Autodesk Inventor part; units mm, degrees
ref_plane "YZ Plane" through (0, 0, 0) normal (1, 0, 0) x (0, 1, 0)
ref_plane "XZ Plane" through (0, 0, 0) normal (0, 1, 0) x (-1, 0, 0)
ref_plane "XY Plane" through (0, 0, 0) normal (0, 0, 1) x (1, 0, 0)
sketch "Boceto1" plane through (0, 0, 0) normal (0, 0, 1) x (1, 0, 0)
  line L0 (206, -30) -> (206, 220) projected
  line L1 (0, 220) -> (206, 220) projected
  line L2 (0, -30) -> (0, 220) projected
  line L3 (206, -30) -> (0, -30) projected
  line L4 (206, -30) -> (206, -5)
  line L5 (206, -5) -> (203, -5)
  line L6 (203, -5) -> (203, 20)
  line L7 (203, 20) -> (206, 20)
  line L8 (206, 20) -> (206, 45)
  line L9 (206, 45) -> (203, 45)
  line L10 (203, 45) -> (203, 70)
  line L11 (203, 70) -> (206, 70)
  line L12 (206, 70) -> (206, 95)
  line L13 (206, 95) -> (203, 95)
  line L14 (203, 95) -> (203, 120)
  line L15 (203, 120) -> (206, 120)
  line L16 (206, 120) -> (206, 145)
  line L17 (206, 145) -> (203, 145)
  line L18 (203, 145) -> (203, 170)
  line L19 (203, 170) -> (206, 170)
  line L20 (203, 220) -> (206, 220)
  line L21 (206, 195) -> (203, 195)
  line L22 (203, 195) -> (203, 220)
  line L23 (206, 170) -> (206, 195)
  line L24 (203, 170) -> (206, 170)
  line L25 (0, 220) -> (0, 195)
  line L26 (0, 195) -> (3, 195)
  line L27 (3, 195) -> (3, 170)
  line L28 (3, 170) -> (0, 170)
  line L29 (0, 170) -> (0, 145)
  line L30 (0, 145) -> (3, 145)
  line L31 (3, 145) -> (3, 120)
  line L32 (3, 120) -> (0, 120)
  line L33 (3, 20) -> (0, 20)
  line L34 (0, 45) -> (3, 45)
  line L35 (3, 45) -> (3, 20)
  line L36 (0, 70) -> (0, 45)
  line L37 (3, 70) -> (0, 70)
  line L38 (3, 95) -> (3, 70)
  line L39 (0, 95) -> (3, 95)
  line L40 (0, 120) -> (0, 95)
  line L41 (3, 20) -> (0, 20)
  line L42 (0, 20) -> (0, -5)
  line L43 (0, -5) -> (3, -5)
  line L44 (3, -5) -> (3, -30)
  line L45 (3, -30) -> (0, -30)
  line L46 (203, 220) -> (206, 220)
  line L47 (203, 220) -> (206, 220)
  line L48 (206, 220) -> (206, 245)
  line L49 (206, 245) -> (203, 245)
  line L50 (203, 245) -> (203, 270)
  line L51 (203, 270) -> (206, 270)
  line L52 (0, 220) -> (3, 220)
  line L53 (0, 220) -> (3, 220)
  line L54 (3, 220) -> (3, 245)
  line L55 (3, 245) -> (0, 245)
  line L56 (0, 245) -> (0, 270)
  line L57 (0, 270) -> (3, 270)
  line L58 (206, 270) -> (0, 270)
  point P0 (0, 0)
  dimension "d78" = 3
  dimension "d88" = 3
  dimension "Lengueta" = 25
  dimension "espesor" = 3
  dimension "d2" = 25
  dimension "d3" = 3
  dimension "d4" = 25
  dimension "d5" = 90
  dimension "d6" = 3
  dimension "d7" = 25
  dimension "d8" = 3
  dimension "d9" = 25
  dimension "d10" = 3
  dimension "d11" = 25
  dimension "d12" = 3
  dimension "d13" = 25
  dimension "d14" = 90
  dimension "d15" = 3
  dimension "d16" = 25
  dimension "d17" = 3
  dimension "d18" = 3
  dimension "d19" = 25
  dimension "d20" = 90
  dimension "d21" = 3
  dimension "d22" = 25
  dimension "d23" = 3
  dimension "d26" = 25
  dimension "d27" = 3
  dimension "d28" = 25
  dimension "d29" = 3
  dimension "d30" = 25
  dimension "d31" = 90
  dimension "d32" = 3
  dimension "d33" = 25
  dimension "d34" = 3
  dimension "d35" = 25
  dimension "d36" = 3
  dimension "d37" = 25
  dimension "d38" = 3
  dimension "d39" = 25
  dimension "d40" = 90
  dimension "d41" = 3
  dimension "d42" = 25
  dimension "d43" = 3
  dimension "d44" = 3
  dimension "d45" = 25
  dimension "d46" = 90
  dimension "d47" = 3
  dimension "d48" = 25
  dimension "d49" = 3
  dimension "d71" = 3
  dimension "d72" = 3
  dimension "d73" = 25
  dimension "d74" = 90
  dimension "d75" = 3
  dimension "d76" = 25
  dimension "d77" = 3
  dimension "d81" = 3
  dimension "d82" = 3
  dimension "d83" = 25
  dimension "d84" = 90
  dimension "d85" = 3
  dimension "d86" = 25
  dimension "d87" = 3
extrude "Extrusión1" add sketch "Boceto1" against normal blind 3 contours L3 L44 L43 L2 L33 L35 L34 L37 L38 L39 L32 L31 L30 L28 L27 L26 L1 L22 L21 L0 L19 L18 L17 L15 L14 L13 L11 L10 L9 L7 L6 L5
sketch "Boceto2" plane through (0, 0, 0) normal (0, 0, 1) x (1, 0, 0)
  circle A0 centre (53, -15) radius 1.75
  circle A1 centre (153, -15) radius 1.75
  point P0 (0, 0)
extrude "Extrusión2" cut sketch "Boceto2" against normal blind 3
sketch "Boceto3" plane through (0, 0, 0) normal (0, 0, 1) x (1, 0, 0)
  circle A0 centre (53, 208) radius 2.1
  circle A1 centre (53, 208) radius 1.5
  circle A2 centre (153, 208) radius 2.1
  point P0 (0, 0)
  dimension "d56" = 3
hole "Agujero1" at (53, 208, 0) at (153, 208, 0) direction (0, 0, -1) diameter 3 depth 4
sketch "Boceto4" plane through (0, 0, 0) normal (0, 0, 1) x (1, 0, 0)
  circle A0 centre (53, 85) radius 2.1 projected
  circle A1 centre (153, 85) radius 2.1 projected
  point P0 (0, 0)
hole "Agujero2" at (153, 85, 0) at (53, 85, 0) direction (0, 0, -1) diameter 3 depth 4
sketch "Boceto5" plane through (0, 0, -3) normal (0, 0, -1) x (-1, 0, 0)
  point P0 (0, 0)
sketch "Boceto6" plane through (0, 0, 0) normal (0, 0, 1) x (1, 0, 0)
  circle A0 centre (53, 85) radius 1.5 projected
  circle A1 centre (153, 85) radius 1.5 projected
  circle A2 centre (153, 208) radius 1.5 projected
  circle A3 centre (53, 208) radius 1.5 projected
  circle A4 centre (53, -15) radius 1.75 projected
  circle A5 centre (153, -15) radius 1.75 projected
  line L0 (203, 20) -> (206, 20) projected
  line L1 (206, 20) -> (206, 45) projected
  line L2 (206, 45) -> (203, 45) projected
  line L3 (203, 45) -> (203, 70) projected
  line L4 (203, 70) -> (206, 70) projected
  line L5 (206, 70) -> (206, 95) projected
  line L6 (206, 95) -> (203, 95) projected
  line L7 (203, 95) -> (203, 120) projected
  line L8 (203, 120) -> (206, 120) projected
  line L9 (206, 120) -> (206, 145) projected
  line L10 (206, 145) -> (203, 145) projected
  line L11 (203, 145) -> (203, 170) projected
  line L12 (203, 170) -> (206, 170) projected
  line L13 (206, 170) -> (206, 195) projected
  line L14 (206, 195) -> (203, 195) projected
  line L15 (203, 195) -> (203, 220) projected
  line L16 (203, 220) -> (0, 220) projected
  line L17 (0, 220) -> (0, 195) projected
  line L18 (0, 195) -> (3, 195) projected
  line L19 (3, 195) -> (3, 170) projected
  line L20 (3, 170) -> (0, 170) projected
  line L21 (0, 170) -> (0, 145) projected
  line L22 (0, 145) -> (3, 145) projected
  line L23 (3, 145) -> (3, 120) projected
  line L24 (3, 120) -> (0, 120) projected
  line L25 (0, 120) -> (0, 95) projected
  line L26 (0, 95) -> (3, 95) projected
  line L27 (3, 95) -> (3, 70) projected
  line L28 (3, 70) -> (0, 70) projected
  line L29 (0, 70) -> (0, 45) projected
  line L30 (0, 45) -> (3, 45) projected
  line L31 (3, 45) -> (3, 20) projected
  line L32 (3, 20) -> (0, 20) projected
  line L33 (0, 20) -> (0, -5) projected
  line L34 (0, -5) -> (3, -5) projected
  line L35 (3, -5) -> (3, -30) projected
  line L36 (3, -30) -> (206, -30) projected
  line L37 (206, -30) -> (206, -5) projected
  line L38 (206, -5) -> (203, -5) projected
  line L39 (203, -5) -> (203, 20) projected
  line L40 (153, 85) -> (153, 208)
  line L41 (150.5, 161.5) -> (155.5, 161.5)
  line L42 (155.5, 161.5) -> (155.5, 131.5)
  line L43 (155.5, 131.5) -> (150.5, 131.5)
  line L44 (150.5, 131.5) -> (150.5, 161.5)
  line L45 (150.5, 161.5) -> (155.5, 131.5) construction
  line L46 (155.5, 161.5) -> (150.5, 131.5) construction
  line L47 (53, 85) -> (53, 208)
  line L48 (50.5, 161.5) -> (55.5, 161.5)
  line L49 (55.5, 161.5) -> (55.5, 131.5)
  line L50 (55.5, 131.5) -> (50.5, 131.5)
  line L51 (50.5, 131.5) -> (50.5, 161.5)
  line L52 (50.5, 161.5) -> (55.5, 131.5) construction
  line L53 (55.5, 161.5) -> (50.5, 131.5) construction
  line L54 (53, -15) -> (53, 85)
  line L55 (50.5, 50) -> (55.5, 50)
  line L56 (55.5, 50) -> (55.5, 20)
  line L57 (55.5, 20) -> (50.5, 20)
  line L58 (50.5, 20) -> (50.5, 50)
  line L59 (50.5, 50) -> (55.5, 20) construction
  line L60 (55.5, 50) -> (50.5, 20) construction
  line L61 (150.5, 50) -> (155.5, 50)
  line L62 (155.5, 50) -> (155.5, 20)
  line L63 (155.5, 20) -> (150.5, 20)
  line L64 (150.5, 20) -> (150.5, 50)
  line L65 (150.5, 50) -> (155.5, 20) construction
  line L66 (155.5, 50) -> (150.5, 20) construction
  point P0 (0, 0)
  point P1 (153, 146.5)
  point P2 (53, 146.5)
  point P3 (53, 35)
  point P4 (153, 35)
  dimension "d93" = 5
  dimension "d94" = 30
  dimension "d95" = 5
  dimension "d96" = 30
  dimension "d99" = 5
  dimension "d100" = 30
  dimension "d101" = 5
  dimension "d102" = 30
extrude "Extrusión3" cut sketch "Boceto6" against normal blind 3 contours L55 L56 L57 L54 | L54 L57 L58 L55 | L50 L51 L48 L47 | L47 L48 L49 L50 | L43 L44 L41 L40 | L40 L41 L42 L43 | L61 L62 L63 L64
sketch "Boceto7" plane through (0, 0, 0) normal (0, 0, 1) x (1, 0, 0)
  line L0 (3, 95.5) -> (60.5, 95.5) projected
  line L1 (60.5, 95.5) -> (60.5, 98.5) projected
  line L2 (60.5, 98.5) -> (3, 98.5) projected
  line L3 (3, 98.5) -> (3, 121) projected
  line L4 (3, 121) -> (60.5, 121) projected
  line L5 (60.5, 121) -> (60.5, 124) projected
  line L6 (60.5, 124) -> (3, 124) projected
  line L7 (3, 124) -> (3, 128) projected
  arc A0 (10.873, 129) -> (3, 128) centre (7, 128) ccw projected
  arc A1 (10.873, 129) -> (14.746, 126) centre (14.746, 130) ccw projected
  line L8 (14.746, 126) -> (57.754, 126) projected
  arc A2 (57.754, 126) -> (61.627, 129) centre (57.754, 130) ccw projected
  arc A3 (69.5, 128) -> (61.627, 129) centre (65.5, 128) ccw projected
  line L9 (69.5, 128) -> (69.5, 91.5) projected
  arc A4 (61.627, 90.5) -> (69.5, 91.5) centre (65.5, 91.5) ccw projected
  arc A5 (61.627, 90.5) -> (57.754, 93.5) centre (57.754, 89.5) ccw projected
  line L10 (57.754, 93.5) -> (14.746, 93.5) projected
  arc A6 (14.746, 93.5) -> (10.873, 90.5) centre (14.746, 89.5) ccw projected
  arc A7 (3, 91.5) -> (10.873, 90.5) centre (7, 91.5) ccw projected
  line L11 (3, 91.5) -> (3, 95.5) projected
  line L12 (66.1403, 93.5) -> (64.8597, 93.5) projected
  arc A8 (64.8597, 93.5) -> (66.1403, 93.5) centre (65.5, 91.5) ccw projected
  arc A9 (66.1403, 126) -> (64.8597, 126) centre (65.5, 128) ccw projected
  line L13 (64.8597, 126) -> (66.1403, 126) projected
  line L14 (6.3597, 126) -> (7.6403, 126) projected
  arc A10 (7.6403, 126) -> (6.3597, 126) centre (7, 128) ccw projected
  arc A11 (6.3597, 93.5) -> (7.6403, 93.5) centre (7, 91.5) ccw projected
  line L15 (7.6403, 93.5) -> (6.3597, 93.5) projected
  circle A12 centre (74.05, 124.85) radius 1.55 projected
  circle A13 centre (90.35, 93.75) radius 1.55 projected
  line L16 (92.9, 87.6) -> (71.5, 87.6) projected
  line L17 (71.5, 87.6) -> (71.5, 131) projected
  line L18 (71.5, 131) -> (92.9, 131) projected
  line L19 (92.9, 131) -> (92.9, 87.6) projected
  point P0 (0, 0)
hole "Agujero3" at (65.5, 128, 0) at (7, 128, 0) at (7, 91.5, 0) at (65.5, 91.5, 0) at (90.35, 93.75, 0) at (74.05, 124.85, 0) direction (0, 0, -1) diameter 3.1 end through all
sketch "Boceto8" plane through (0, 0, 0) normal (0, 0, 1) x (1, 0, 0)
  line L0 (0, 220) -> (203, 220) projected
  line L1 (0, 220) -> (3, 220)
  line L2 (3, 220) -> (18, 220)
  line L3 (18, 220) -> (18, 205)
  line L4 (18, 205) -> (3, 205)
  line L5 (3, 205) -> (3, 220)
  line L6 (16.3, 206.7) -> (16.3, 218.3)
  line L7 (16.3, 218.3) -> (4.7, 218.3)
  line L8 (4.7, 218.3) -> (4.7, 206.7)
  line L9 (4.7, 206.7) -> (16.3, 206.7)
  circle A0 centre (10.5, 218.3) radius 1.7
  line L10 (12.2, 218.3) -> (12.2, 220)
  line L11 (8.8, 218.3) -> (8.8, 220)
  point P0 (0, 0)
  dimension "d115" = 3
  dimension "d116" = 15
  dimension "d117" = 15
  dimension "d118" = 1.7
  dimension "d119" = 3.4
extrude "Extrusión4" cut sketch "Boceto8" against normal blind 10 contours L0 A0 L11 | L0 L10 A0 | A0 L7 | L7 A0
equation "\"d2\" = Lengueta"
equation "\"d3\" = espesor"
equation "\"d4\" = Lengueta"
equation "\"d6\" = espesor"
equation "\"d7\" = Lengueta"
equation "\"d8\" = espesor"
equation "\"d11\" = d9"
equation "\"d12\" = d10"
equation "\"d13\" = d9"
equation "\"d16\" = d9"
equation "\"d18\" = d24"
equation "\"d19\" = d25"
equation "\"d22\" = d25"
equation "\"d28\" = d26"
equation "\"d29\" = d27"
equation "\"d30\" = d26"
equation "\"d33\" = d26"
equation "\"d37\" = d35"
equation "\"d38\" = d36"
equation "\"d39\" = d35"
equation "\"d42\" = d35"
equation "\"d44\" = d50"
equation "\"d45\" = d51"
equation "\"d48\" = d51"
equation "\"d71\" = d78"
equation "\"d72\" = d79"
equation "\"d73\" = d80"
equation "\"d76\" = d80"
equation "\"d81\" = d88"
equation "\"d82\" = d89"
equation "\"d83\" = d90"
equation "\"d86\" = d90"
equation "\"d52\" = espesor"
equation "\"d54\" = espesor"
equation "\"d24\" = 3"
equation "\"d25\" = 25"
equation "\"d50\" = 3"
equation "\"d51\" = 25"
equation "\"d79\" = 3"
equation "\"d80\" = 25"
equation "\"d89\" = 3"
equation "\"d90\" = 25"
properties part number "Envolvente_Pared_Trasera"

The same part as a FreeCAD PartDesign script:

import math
import FreeCAD as App
import Part
import Sketcher
from FreeCAD import Vector


def add_polygon(sketch, points):
    """Adds a closed chain of lines whose ends are joined by coincident constraints."""
    first, n = sketch.GeometryCount, len(points)
    for a, b in zip(points, points[1:] + points[:1]):
        sketch.addGeometry(Part.LineSegment(App.Vector(*a, 0), App.Vector(*b, 0)), False)
    for i in range(n):
        sketch.addConstraint(Sketcher.Constraint("Coincident", first + i, 2, first + (i + 1) % n, 1))

doc = App.newDocument("Part")
body = doc.addObject("PartDesign::Body", "Body")

sketch1 = doc.addObject("Sketcher::SketchObject", "Sketch")
body.addObject(sketch1)
sketch1.AttachmentSupport = (doc.XY_Plane, [""])
sketch1.MapMode = "FlatFace"
add_polygon(sketch1, [(3, -30), (206, -30), (206, -5), (203, -5), (203, 20), (206, 20), (206, 45), (203, 45), (203, 70), (206, 70), (206, 95), (203, 95), (203, 120), (206, 120), (206, 145), (203, 145), (203, 170), (206, 170), (206, 195), (203, 195), (203, 220), (0, 220), (0, 195), (3, 195), (3, 170), (0, 170), (0, 145), (3, 145), (3, 120), (0, 120), (0, 95), (3, 95), (3, 70), (0, 70), (0, 45), (3, 45), (3, 20), (0, 20), (0, -5), (3, -5)])
sketch1.addConstraint([
    Sketcher.Constraint("Horizontal", 0),
    Sketcher.Constraint("Vertical", 1),
    Sketcher.Constraint("Horizontal", 2),
    Sketcher.Constraint("Vertical", 3),
    Sketcher.Constraint("Horizontal", 4),
    Sketcher.Constraint("Vertical", 5),
    Sketcher.Constraint("Horizontal", 6),
    Sketcher.Constraint("Vertical", 7),
    Sketcher.Constraint("Horizontal", 8),
    Sketcher.Constraint("Vertical", 9),
    Sketcher.Constraint("Horizontal", 10),
    Sketcher.Constraint("Vertical", 11),
    Sketcher.Constraint("Horizontal", 12),
    Sketcher.Constraint("Vertical", 13),
    Sketcher.Constraint("Horizontal", 14),
    Sketcher.Constraint("Vertical", 15),
    Sketcher.Constraint("Horizontal", 16),
    Sketcher.Constraint("Vertical", 17),
    Sketcher.Constraint("Horizontal", 18),
    Sketcher.Constraint("Vertical", 19),
    Sketcher.Constraint("Horizontal", 20),
    Sketcher.Constraint("Vertical", 21),
    Sketcher.Constraint("Horizontal", 22),
    Sketcher.Constraint("Vertical", 23),
    Sketcher.Constraint("Horizontal", 24),
    Sketcher.Constraint("Vertical", 25),
    Sketcher.Constraint("Horizontal", 26),
    Sketcher.Constraint("Vertical", 27),
    Sketcher.Constraint("Horizontal", 28),
    Sketcher.Constraint("Vertical", 29),
    Sketcher.Constraint("Horizontal", 30),
    Sketcher.Constraint("Vertical", 31),
    Sketcher.Constraint("Horizontal", 32),
    Sketcher.Constraint("Vertical", 33),
    Sketcher.Constraint("Horizontal", 34),
    Sketcher.Constraint("Vertical", 35),
    Sketcher.Constraint("Horizontal", 36),
    Sketcher.Constraint("Vertical", 37),
    Sketcher.Constraint("Horizontal", 38),
    Sketcher.Constraint("Vertical", 39),
    Sketcher.Constraint("PointOnObject", 20, 2, -2),
    Sketcher.Constraint("PointOnObject", 24, 2, -2),
    Sketcher.Constraint("PointOnObject", 28, 2, -2),
    Sketcher.Constraint("PointOnObject", 32, 2, -2),
    Sketcher.Constraint("PointOnObject", 36, 2, -2),
    Sketcher.Constraint("Horizontal", 18, 2, 21, 2),
    Sketcher.Constraint("Horizontal", 16, 2, 23, 2),
    Sketcher.Constraint("Horizontal", 14, 2, 25, 2),
    Sketcher.Constraint("Horizontal", 12, 2, 27, 2),
    Sketcher.Constraint("Horizontal", 10, 2, 29, 2),
    Sketcher.Constraint("Horizontal", 8, 2, 31, 2),
    Sketcher.Constraint("Horizontal", 6, 2, 33, 2),
    Sketcher.Constraint("Horizontal", 4, 2, 35, 2),
    Sketcher.Constraint("Horizontal", 2, 2, 37, 2),
    Sketcher.Constraint("Vertical", 1, 2, 4, 2),
    Sketcher.Constraint("Vertical", 3, 2, 6, 2),
    Sketcher.Constraint("Vertical", 5, 2, 8, 2),
    Sketcher.Constraint("Vertical", 7, 2, 10, 2),
    Sketcher.Constraint("Vertical", 9, 2, 12, 2),
    Sketcher.Constraint("Vertical", 11, 2, 14, 2),
    Sketcher.Constraint("Vertical", 13, 2, 16, 2),
    Sketcher.Constraint("Vertical", 15, 2, 18, 2),
    Sketcher.Constraint("Vertical", 23, 2, 26, 2),
    Sketcher.Constraint("Vertical", 27, 2, 30, 2),
    Sketcher.Constraint("Vertical", 31, 2, 34, 2),
    Sketcher.Constraint("Vertical", 35, 2, 38, 2),
    Sketcher.Constraint("Equal", 0, 20),
    Sketcher.Constraint("Equal", 1, 3),
    Sketcher.Constraint("Equal", 3, 5),
    Sketcher.Constraint("Equal", 5, 7),
    Sketcher.Constraint("Equal", 7, 9),
    Sketcher.Constraint("Equal", 9, 11),
    Sketcher.Constraint("Equal", 11, 13),
    Sketcher.Constraint("Equal", 13, 15),
    Sketcher.Constraint("Equal", 15, 17),
    Sketcher.Constraint("Equal", 17, 19),
    Sketcher.Constraint("DistanceX", 2, 2, 2, 1, 3.0),
    Sketcher.Constraint("DistanceY", 1, 1, 1, 2, 25.0),
    Sketcher.Constraint("DistanceX", 0, 1, 0, 2, 203.0),
    Sketcher.Constraint("DistanceY", 0, 2, -1, 1, 30.0),
])
pad1 = doc.addObject("PartDesign::Pad", "Pad")
body.addObject(pad1)
pad1.Profile = sketch1
pad1.Length = 3
pad1.Reversed = True

sketch2 = doc.addObject("Sketcher::SketchObject", "Sketch001")
body.addObject(sketch2)
sketch2.AttachmentSupport = (doc.XY_Plane, [""])
sketch2.MapMode = "FlatFace"
sketch2.addGeometry([
    Part.Circle(Vector(53, -15, 0), Vector(0, 0, 1), 1.75),
    Part.Circle(Vector(153, -15, 0), Vector(0, 0, 1), 1.75),
], False)
sketch2.addConstraint([
    Sketcher.Constraint("Equal", 0, 1),
    Sketcher.Constraint("Horizontal", 0, 3, 1, 3),
    Sketcher.Constraint("Diameter", 0, 3.5),
    Sketcher.Constraint("DistanceX", -1, 1, 0, 3, 53.0),
    Sketcher.Constraint("DistanceY", 0, 3, -1, 1, 15.0),
    Sketcher.Constraint("DistanceX", -1, 1, 1, 3, 153.0),
])
pocket1 = doc.addObject("PartDesign::Pocket", "Pocket")
body.addObject(pocket1)
pocket1.Profile = sketch2
pocket1.Length = 3

sketch3 = doc.addObject("Sketcher::SketchObject", "Sketch002")
body.addObject(sketch3)
sketch3.AttachmentSupport = (doc.XY_Plane, [""])
sketch3.MapMode = "FlatFace"
sketch3.addGeometry([
    Part.Circle(Vector(53, 208, 0), Vector(0, 0, 1), 1.5),
    Part.Circle(Vector(153, 208, 0), Vector(0, 0, 1), 1.5),
], False)
sketch3.addConstraint([
    Sketcher.Constraint("Equal", 0, 1),
    Sketcher.Constraint("Horizontal", 0, 3, 1, 3),
    Sketcher.Constraint("Diameter", 0, 3.0),
    Sketcher.Constraint("DistanceX", -1, 1, 0, 3, 53.0),
    Sketcher.Constraint("DistanceY", -1, 1, 0, 3, 208.0),
    Sketcher.Constraint("DistanceX", -1, 1, 1, 3, 153.0),
])
doc.recompute()
hole = doc.addObject("PartDesign::Hole", "Hole")
body.addObject(hole)
hole.Profile = sketch3
hole.ThreadType = "None"
hole.Diameter = 3
hole.DepthType = "Dimension"
hole.Depth = 4
hole.DrillPoint = "Flat"

sketch4 = doc.addObject("Sketcher::SketchObject", "Sketch003")
body.addObject(sketch4)
sketch4.AttachmentSupport = (doc.XY_Plane, [""])
sketch4.MapMode = "FlatFace"
sketch4.addGeometry([
    Part.Circle(Vector(153, 85, 0), Vector(0, 0, 1), 1.5),
    Part.Circle(Vector(53, 85, 0), Vector(0, 0, 1), 1.5),
], False)
sketch4.addConstraint([
    Sketcher.Constraint("Equal", 0, 1),
    Sketcher.Constraint("Horizontal", 0, 3, 1, 3),
    Sketcher.Constraint("Diameter", 0, 3.0),
    Sketcher.Constraint("DistanceX", -1, 1, 0, 3, 153.0),
    Sketcher.Constraint("DistanceY", -1, 1, 0, 3, 85.0),
    Sketcher.Constraint("DistanceX", -1, 1, 1, 3, 53.0),
])
doc.recompute()
hole2 = doc.addObject("PartDesign::Hole", "Hole001")
body.addObject(hole2)
hole2.Profile = sketch4
hole2.ThreadType = "None"
hole2.Diameter = 3
hole2.DepthType = "Dimension"
hole2.Depth = 4
hole2.DrillPoint = "Flat"

sketch5 = doc.addObject("Sketcher::SketchObject", "Sketch004")
body.addObject(sketch5)
sketch5.AttachmentSupport = (doc.XY_Plane, [""])
sketch5.MapMode = "FlatFace"
add_polygon(sketch5, [(55.5, 50), (50.5, 50), (50.5, 20), (55.5, 20)])
add_polygon(sketch5, [(50.5, 131.5), (55.5, 131.5), (55.5, 161.5), (50.5, 161.5)])
add_polygon(sketch5, [(150.5, 131.5), (155.5, 131.5), (155.5, 161.5), (150.5, 161.5)])
add_polygon(sketch5, [(155.5, 50), (150.5, 50), (150.5, 20), (155.5, 20)])
sketch5.addConstraint([
    Sketcher.Constraint("Horizontal", 0),
    Sketcher.Constraint("Vertical", 1),
    Sketcher.Constraint("Horizontal", 2),
    Sketcher.Constraint("Vertical", 3),
    Sketcher.Constraint("Horizontal", 4),
    Sketcher.Constraint("Vertical", 5),
    Sketcher.Constraint("Horizontal", 6),
    Sketcher.Constraint("Vertical", 7),
    Sketcher.Constraint("Horizontal", 8),
    Sketcher.Constraint("Vertical", 9),
    Sketcher.Constraint("Horizontal", 10),
    Sketcher.Constraint("Vertical", 11),
    Sketcher.Constraint("Horizontal", 12),
    Sketcher.Constraint("Vertical", 13),
    Sketcher.Constraint("Horizontal", 14),
    Sketcher.Constraint("Vertical", 15),
    Sketcher.Constraint("Horizontal", 7, 2, 8, 2),
    Sketcher.Constraint("Horizontal", 6, 2, 9, 2),
    Sketcher.Constraint("Horizontal", 3, 2, 12, 2),
    Sketcher.Constraint("Horizontal", 2, 2, 13, 2),
    Sketcher.Constraint("Vertical", 3, 2, 4, 2),
    Sketcher.Constraint("Vertical", 1, 2, 6, 2),
    Sketcher.Constraint("Vertical", 11, 2, 12, 2),
    Sketcher.Constraint("Vertical", 9, 2, 14, 2),
    Sketcher.Constraint("Equal", 6, 8),
    Sketcher.Constraint("Equal", 3, 5),
    Sketcher.Constraint("DistanceX", 0, 2, 0, 1, 5.0),
    Sketcher.Constraint("DistanceY", 1, 2, 1, 1, 30.0),
    Sketcher.Constraint("DistanceY", -1, 1, 0, 2, 50.0),
    Sketcher.Constraint("DistanceX", 4, 2, 8, 2, 100.0),
    Sketcher.Constraint("DistanceX", -1, 1, 0, 2, 50.5),
    Sketcher.Constraint("DistanceY", -1, 1, 4, 2, 131.5),
])
pocket2 = doc.addObject("PartDesign::Pocket", "Pocket001")
body.addObject(pocket2)
pocket2.Profile = sketch5
pocket2.Length = 3

sketch6 = doc.addObject("Sketcher::SketchObject", "Sketch005")
body.addObject(sketch6)
sketch6.AttachmentSupport = (doc.XY_Plane, [""])
sketch6.MapMode = "FlatFace"
sketch6.addGeometry([
    Part.Circle(Vector(65.5, 128, 0), Vector(0, 0, 1), 1.55),
    Part.Circle(Vector(7, 128, 0), Vector(0, 0, 1), 1.55),
    Part.Circle(Vector(7, 91.5, 0), Vector(0, 0, 1), 1.55),
    Part.Circle(Vector(65.5, 91.5, 0), Vector(0, 0, 1), 1.55),
    Part.Circle(Vector(90.35, 93.75, 0), Vector(0, 0, 1), 1.55),
    Part.Circle(Vector(74.05, 124.85, 0), Vector(0, 0, 1), 1.55),
], False)
sketch6.addConstraint([
    Sketcher.Constraint("Equal", 0, 1),
    Sketcher.Constraint("Equal", 1, 2),
    Sketcher.Constraint("Equal", 2, 3),
    Sketcher.Constraint("Equal", 3, 4),
    Sketcher.Constraint("Equal", 4, 5),
    Sketcher.Constraint("Horizontal", 0, 3, 1, 3),
    Sketcher.Constraint("Horizontal", 2, 3, 3, 3),
    Sketcher.Constraint("Vertical", 1, 3, 2, 3),
    Sketcher.Constraint("Vertical", 0, 3, 3, 3),
    Sketcher.Constraint("Diameter", 0, 3.1),
    Sketcher.Constraint("DistanceY", -1, 1, 0, 3, 128.0),
    Sketcher.Constraint("DistanceX", -1, 1, 1, 3, 7.0),
    Sketcher.Constraint("DistanceX", -1, 1, 0, 3, 65.5),
    Sketcher.Constraint("DistanceY", -1, 1, 2, 3, 91.5),
    Sketcher.Constraint("DistanceX", 5, 3, 4, 3, 16.3),
    Sketcher.Constraint("DistanceY", 4, 3, 5, 3, 31.1),
    Sketcher.Constraint("DistanceX", -1, 1, 4, 3, 90.35),
    Sketcher.Constraint("DistanceY", -1, 1, 4, 3, 93.75),
])
doc.recompute()
hole3 = doc.addObject("PartDesign::Hole", "Hole002")
body.addObject(hole3)
hole3.Profile = sketch6
hole3.ThreadType = "None"
hole3.Diameter = 3.1
hole3.DepthType = "ThroughAll"

sketch7 = doc.addObject("Sketcher::SketchObject", "Sketch006")
body.addObject(sketch7)
sketch7.AttachmentSupport = (doc.XY_Plane, [""])
sketch7.MapMode = "FlatFace"
sketch7.addGeometry([
    Part.LineSegment(Vector(8.8, 220, 0), Vector(8.8, 218.3, 0)),
    Part.ArcOfCircle(Part.Circle(Vector(10.5, 218.3, 0), Vector(0, 0, 1), 1.7), math.radians(180), math.radians(360)),
    Part.LineSegment(Vector(12.2, 218.3, 0), Vector(12.2, 220, 0)),
    Part.LineSegment(Vector(12.2, 220, 0), Vector(8.8, 220, 0)),
], False)
sketch7.addConstraint([
    Sketcher.Constraint("Tangent", 0, 2, 1, 1),
    Sketcher.Constraint("Tangent", 1, 2, 2, 1),
    Sketcher.Constraint("Coincident", 2, 2, 3, 1),
    Sketcher.Constraint("Coincident", 3, 2, 0, 1),
    Sketcher.Constraint("Vertical", 0),
    Sketcher.Constraint("Vertical", 2),
    Sketcher.Constraint("Horizontal", 3),
    Sketcher.Constraint("Radius", 1, 1.7),
    Sketcher.Constraint("DistanceY", 0, 2, 0, 1, 1.7),
    Sketcher.Constraint("DistanceY", -1, 1, 2, 2, 220.0),
    Sketcher.Constraint("DistanceX", -1, 1, 1, 3, 10.5),
])
pocket3 = doc.addObject("PartDesign::Pocket", "Pocket002")
body.addObject(pocket3)
pocket3.Profile = sketch7
pocket3.Length = 10

doc.recompute()
